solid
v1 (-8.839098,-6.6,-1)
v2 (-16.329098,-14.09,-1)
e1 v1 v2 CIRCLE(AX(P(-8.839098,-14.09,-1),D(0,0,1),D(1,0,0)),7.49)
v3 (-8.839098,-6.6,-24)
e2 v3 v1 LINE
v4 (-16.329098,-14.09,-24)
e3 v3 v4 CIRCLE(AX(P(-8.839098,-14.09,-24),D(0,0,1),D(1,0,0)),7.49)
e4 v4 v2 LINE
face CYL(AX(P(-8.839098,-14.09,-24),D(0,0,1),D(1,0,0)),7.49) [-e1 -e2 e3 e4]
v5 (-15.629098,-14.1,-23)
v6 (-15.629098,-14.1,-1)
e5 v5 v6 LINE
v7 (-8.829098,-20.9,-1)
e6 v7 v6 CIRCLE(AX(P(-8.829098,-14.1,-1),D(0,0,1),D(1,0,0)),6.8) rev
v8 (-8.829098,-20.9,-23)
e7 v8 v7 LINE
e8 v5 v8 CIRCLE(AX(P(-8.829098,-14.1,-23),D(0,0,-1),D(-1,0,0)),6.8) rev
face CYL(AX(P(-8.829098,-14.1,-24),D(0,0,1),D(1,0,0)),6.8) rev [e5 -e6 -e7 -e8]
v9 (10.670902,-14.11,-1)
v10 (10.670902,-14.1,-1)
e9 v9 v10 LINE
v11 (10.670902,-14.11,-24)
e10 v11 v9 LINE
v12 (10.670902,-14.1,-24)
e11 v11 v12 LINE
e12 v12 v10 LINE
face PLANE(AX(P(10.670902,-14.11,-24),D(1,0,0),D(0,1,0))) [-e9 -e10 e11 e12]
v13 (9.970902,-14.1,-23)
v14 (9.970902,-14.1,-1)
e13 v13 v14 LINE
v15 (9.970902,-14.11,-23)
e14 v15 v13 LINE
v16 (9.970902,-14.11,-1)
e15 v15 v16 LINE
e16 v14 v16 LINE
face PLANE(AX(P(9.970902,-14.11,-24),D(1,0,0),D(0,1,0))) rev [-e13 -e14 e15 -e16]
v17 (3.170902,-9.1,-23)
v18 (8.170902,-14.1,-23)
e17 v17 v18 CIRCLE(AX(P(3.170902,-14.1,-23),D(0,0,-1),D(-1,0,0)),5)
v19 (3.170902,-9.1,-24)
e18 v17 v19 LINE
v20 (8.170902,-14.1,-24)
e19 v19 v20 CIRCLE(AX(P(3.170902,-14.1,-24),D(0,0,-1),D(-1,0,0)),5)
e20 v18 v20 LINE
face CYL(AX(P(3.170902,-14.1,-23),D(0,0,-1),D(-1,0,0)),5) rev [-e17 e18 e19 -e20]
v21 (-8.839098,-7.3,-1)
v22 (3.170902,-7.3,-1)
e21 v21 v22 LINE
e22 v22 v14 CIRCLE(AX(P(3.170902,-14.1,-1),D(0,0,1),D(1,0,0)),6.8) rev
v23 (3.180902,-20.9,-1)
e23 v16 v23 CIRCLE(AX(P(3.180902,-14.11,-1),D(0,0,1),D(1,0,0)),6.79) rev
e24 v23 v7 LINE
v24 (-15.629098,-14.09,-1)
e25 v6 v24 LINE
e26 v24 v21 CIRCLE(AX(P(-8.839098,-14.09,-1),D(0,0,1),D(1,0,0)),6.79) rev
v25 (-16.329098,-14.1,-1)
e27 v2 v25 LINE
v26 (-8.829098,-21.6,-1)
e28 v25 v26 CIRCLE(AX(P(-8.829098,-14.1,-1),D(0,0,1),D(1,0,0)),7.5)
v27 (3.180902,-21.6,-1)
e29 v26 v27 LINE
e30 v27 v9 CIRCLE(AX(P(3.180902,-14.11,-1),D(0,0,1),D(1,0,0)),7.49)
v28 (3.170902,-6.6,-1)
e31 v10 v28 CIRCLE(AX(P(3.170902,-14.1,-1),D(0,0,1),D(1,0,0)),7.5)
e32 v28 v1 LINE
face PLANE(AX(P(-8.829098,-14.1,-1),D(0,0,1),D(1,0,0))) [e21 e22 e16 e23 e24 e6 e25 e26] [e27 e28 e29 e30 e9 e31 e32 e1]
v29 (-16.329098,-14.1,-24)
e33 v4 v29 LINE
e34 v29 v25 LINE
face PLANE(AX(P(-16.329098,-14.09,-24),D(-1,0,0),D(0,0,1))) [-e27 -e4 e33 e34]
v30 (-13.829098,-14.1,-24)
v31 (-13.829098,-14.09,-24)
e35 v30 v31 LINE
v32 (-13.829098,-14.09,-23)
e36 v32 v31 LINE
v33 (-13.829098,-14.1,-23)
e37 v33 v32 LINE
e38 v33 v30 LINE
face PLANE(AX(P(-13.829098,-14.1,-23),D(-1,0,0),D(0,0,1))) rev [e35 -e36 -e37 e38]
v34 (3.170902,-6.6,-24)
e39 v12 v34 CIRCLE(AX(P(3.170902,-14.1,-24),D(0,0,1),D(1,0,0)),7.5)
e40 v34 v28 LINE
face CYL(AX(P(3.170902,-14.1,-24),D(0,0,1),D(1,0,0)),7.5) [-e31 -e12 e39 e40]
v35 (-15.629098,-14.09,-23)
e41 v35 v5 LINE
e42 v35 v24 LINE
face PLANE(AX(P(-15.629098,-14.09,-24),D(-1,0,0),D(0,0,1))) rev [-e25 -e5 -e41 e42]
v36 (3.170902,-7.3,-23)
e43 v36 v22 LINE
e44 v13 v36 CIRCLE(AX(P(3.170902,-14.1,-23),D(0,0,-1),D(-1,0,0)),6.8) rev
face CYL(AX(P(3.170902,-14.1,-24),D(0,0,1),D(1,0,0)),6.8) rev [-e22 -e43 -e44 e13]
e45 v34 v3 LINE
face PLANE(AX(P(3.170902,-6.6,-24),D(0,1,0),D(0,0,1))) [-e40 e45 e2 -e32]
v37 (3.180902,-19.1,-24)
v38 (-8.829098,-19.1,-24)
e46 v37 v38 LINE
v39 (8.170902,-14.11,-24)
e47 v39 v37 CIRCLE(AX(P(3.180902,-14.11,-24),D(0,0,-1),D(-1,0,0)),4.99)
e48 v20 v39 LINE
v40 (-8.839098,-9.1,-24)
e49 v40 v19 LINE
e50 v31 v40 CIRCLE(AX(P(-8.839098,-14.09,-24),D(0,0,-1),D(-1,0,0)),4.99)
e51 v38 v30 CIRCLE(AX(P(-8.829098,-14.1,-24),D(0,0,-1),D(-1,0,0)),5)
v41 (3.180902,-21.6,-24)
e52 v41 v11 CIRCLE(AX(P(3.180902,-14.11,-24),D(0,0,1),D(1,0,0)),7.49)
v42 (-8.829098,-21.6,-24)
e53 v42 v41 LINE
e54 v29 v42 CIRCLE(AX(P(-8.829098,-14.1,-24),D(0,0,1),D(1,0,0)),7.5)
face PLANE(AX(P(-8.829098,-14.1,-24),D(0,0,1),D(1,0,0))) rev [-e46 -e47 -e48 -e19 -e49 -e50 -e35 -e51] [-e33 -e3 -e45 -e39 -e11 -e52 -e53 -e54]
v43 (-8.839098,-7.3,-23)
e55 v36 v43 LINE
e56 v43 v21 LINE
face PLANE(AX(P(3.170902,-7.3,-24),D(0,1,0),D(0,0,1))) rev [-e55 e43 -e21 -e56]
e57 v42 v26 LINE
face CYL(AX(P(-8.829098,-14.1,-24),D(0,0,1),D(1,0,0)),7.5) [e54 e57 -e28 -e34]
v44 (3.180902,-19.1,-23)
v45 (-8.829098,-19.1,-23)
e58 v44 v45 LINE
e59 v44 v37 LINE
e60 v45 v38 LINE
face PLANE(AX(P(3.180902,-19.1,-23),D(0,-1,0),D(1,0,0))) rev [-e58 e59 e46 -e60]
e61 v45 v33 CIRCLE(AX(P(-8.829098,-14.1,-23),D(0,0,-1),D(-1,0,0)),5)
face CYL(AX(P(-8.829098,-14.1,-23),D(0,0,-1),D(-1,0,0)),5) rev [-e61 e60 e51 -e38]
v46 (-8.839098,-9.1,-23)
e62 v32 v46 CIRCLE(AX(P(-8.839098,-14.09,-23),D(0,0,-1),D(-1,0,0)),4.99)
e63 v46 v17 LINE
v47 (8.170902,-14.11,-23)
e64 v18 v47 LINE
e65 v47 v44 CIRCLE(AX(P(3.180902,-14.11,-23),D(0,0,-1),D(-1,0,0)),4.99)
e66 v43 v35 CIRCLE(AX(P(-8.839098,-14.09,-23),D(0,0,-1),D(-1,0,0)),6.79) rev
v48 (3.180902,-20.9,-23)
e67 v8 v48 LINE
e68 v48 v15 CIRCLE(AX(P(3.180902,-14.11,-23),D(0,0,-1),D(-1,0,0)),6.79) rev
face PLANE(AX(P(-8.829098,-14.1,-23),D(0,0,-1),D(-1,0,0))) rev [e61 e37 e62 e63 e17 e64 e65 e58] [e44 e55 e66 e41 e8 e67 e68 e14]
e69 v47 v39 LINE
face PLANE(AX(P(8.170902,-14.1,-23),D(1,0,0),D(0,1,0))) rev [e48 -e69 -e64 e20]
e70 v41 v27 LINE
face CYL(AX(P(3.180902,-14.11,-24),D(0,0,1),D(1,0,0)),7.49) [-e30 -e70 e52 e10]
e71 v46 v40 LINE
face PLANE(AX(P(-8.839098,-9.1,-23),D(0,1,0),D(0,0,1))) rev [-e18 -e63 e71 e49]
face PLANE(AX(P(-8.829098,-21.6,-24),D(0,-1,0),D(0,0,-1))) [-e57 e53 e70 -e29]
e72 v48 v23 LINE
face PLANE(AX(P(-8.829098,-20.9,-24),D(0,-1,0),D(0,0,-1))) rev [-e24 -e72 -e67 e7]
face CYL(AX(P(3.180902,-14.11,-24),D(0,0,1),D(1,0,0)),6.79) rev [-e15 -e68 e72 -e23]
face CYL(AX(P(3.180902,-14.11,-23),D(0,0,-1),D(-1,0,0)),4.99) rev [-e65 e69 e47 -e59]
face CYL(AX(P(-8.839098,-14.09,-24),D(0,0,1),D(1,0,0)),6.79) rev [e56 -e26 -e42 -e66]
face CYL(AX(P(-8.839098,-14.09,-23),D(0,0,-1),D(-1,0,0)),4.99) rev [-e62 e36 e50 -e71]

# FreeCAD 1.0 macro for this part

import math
import FreeCAD as App
import Part
import Sketcher
from FreeCAD import Vector

doc = App.newDocument("Part")
body = doc.addObject("PartDesign::Body", "Body")

# Sketch on XY plane
sketch1 = doc.addObject("Sketcher::SketchObject", "Sketch")
body.addObject(sketch1)
sketch1.AttachmentSupport = (doc.XY_Plane, [""])
sketch1.MapMode = "FlatFace"
sketch1.addGeometry([
    Part.LineSegment(Vector(-8.829, -21.6, 0), Vector(3.181, -21.6, 0)),  # 0
    Part.ArcOfCircle(Part.Circle(Vector(3.181, -14.11, 0), Vector(0, 0, 1), 7.49), math.radians(-90), math.radians(0)),  # 1
    Part.LineSegment(Vector(10.671, -14.11, 0), Vector(10.671, -14.1, 0)),  # 2
    Part.ArcOfCircle(Part.Circle(Vector(3.171, -14.1, 0), Vector(0, 0, 1), 7.5), math.radians(0), math.radians(90)),  # 3
    Part.LineSegment(Vector(3.171, -6.6, 0), Vector(-8.839, -6.6, 0)),  # 4
    Part.ArcOfCircle(Part.Circle(Vector(-8.839, -14.09, 0), Vector(0, 0, 1), 7.49), math.radians(90), math.radians(180)),  # 5
    Part.LineSegment(Vector(-16.329, -14.09, 0), Vector(-16.329, -14.1, 0)),  # 6
    Part.ArcOfCircle(Part.Circle(Vector(-8.829, -14.1, 0), Vector(0, 0, 1), 7.5), math.radians(180), math.radians(270)),  # 7
    Part.LineSegment(Vector(-8.839, -7.3, 0), Vector(3.171, -7.3, 0)),  # 8
    Part.ArcOfCircle(Part.Circle(Vector(3.171, -14.1, 0), Vector(0, 0, 1), 6.8), math.radians(0), math.radians(90)),  # 9
    Part.LineSegment(Vector(9.971, -14.1, 0), Vector(9.971, -14.11, 0)),  # 10
    Part.ArcOfCircle(Part.Circle(Vector(3.181, -14.11, 0), Vector(0, 0, 1), 6.79), math.radians(-90), math.radians(0)),  # 11
    Part.LineSegment(Vector(3.181, -20.9, 0), Vector(-8.829, -20.9, 0)),  # 12
    Part.ArcOfCircle(Part.Circle(Vector(-8.829, -14.1, 0), Vector(0, 0, 1), 6.8), math.radians(180), math.radians(270)),  # 13
    Part.LineSegment(Vector(-15.629, -14.1, 0), Vector(-15.629, -14.09, 0)),  # 14
    Part.ArcOfCircle(Part.Circle(Vector(-8.839, -14.09, 0), Vector(0, 0, 1), 6.79), math.radians(90), math.radians(180)),  # 15
], False)
sketch1.addConstraint([
    Sketcher.Constraint("Tangent", 0, 2, 1, 1),
    Sketcher.Constraint("Tangent", 1, 2, 2, 1),
    Sketcher.Constraint("Coincident", 2, 2, 3, 1),
    Sketcher.Constraint("Tangent", 3, 2, 4, 1),
    Sketcher.Constraint("Tangent", 4, 2, 5, 1),
    Sketcher.Constraint("Tangent", 5, 2, 6, 1),
    Sketcher.Constraint("Coincident", 6, 2, 7, 1),
    Sketcher.Constraint("Tangent", 7, 2, 0, 1),
    Sketcher.Constraint("Tangent", 8, 2, 9, 2),
    Sketcher.Constraint("Tangent", 9, 1, 10, 1),
    Sketcher.Constraint("Coincident", 10, 2, 11, 2),
    Sketcher.Constraint("Tangent", 11, 1, 12, 1),
    Sketcher.Constraint("Tangent", 12, 2, 13, 2),
    Sketcher.Constraint("Tangent", 13, 1, 14, 1),
    Sketcher.Constraint("Coincident", 14, 2, 15, 2),
    Sketcher.Constraint("Tangent", 15, 1, 8, 1),
    Sketcher.Constraint("Horizontal", 0),
    Sketcher.Constraint("Horizontal", 4),
    Sketcher.Constraint("Horizontal", 8),
    Sketcher.Constraint("Horizontal", 12),
    Sketcher.Constraint("Coincident", 9, 3, 3, 3),
    Sketcher.Constraint("Coincident", 11, 3, 1, 3),
    Sketcher.Constraint("Coincident", 13, 3, 7, 3),
    Sketcher.Constraint("Coincident", 15, 3, 5, 3),
    Sketcher.Constraint("Equal", 1, 5),
    Sketcher.Constraint("Equal", 3, 7),
    Sketcher.Constraint("Horizontal", 3, 3, 7, 3),
    Sketcher.Constraint("Horizontal", 11, 3, 1, 2),
    Sketcher.Constraint("Horizontal", 13, 3, 2, 2),
    Sketcher.Constraint("Horizontal", 15, 3, 5, 2),
    Sketcher.Constraint("Horizontal", 2, 2, 6, 2),
    Sketcher.Constraint("Horizontal", 6, 2, 9, 1),
    Sketcher.Constraint("Horizontal", 1, 2, 10, 2),
    Sketcher.Constraint("Horizontal", 5, 2, 14, 2),
    Sketcher.Constraint("Radius", 3, 7.5),
    Sketcher.Constraint("Radius", 9, 6.8),
    Sketcher.Constraint("Radius", 1, 7.49),
    Sketcher.Constraint("DistanceX", 7, 3, 3, 3, 12.0),
    Sketcher.Constraint("DistanceY", 3, 3, -1, 1, 14.1),
    Sketcher.Constraint("DistanceX", -1, 1, 1, 3, 3.180902),
])
pad1 = doc.addObject("PartDesign::Pad", "Pad")
body.addObject(pad1)
pad1.Profile = sketch1
pad1.Length = 24
pad1.Reversed = True

# Sketch on XY plane
sketch2 = doc.addObject("Sketcher::SketchObject", "Sketch001")
body.addObject(sketch2)
sketch2.AttachmentSupport = (doc.XY_Plane, [""])
sketch2.MapMode = "FlatFace"
sketch2.addGeometry([
    Part.LineSegment(Vector(-8.829, -21.6, 0), Vector(3.181, -21.6, 0)),  # 0
    Part.ArcOfCircle(Part.Circle(Vector(3.181, -14.11, 0), Vector(0, 0, 1), 7.49), math.radians(-90), math.radians(0)),  # 1
    Part.LineSegment(Vector(10.671, -14.11, 0), Vector(10.671, -14.1, 0)),  # 2
    Part.ArcOfCircle(Part.Circle(Vector(3.171, -14.1, 0), Vector(0, 0, 1), 7.5), math.radians(0), math.radians(90)),  # 3
    Part.LineSegment(Vector(3.171, -6.6, 0), Vector(-8.839, -6.6, 0)),  # 4
    Part.ArcOfCircle(Part.Circle(Vector(-8.839, -14.09, 0), Vector(0, 0, 1), 7.49), math.radians(90), math.radians(180)),  # 5
    Part.LineSegment(Vector(-16.329, -14.09, 0), Vector(-16.329, -14.1, 0)),  # 6
    Part.ArcOfCircle(Part.Circle(Vector(-8.829, -14.1, 0), Vector(0, 0, 1), 7.5), math.radians(180), math.radians(270)),  # 7
], False)
sketch2.addConstraint([
    Sketcher.Constraint("Tangent", 0, 2, 1, 1),
    Sketcher.Constraint("Tangent", 1, 2, 2, 1),
    Sketcher.Constraint("Coincident", 2, 2, 3, 1),
    Sketcher.Constraint("Tangent", 3, 2, 4, 1),
    Sketcher.Constraint("Tangent", 4, 2, 5, 1),
    Sketcher.Constraint("Tangent", 5, 2, 6, 1),
    Sketcher.Constraint("Coincident", 6, 2, 7, 1),
    Sketcher.Constraint("Tangent", 7, 2, 0, 1),
    Sketcher.Constraint("Horizontal", 0),
    Sketcher.Constraint("Horizontal", 4),
    Sketcher.Constraint("Equal", 1, 5),
    Sketcher.Constraint("Equal", 3, 7),
    Sketcher.Constraint("Horizontal", 3, 3, 7, 3),
    Sketcher.Constraint("Horizontal", 7, 3, 2, 2),
    Sketcher.Constraint("Horizontal", 2, 2, 6, 2),
    Sketcher.Constraint("Equal", 2, 6),
    Sketcher.Constraint("Radius", 3, 7.5),
    Sketcher.Constraint("Radius", 1, 7.49),
    Sketcher.Constraint("DistanceX", 7, 3, 3, 3, 12.0),
    Sketcher.Constraint("DistanceY", 2, 1, 2, 2, 0.01),
    Sketcher.Constraint("DistanceY", 3, 3, -1, 1, 14.1),
    Sketcher.Constraint("DistanceX", -1, 1, 1, 3, 3.180902),
])
pocket1 = doc.addObject("PartDesign::Pocket", "Pocket")
body.addObject(pocket1)
pocket1.Profile = sketch2
pocket1.Length = 1

# Sketch on XY plane
sketch3 = doc.addObject("Sketcher::SketchObject", "Sketch002")
body.addObject(sketch3)
sketch3.AttachmentSupport = (doc.XY_Plane, [""])
sketch3.MapMode = "FlatFace"
sketch3.AttachmentOffset = App.Placement(Vector(0, 0, -23), App.Rotation())
sketch3.addGeometry([
    Part.LineSegment(Vector(-16.329, -14.1, 0), Vector(-16.329, -14.09, 0)),  # 0
    Part.ArcOfCircle(Part.Circle(Vector(-8.839, -14.09, 0), Vector(0, 0, 1), 7.49), math.radians(90), math.radians(180)),  # 1
    Part.LineSegment(Vector(-8.839, -6.6, 0), Vector(3.171, -6.6, 0)),  # 2
    Part.ArcOfCircle(Part.Circle(Vector(3.171, -14.1, 0), Vector(0, 0, 1), 7.5), math.radians(0), math.radians(90)),  # 3
    Part.LineSegment(Vector(10.671, -14.1, 0), Vector(10.671, -14.11, 0)),  # 4
    Part.ArcOfCircle(Part.Circle(Vector(3.181, -14.11, 0), Vector(0, 0, 1), 7.49), math.radians(-90), math.radians(0)),  # 5
    Part.LineSegment(Vector(3.181, -21.6, 0), Vector(-8.829, -21.6, 0)),  # 6
    Part.ArcOfCircle(Part.Circle(Vector(-8.829, -14.1, 0), Vector(0, 0, 1), 7.5), math.radians(180), math.radians(270)),  # 7
    Part.LineSegment(Vector(3.171, -9.1, 0), Vector(-8.839, -9.1, 0)),  # 8
    Part.ArcOfCircle(Part.Circle(Vector(-8.839, -14.09, 0), Vector(0, 0, 1), 4.99), math.radians(90), math.radians(180)),  # 9
    Part.LineSegment(Vector(-13.829, -14.09, 0), Vector(-13.829, -14.1, 0)),  # 10
    Part.ArcOfCircle(Part.Circle(Vector(-8.829, -14.1, 0), Vector(0, 0, 1), 5), math.radians(180), math.radians(270)),  # 11
    Part.LineSegment(Vector(-8.829, -19.1, 0), Vector(3.181, -19.1, 0)),  # 12
    Part.ArcOfCircle(Part.Circle(Vector(3.181, -14.11, 0), Vector(0, 0, 1), 4.99), math.radians(-90), math.radians(0)),  # 13
    Part.LineSegment(Vector(8.171, -14.11, 0), Vector(8.171, -14.1, 0)),  # 14
    Part.ArcOfCircle(Part.Circle(Vector(3.171, -14.1, 0), Vector(0, 0, 1), 5), math.radians(0), math.radians(90)),  # 15
], False)
sketch3.addConstraint([
    Sketcher.Constraint("Tangent", 0, 2, 1, 2),
    Sketcher.Constraint("Tangent", 1, 1, 2, 1),
    Sketcher.Constraint("Tangent", 2, 2, 3, 2),
    Sketcher.Constraint("Tangent", 3, 1, 4, 1),
    Sketcher.Constraint("Coincident", 4, 2, 5, 2),
    Sketcher.Constraint("Tangent", 5, 1, 6, 1),
    Sketcher.Constraint("Tangent", 6, 2, 7, 2),
    Sketcher.Constraint("Coincident", 7, 1, 0, 1),
    Sketcher.Constraint("Tangent", 8, 2, 9, 1),
    Sketcher.Constraint("Tangent", 9, 2, 10, 1),
    Sketcher.Constraint("Tangent", 10, 2, 11, 1),
    Sketcher.Constraint("Tangent", 11, 2, 12, 1),
    Sketcher.Constraint("Tangent", 12, 2, 13, 1),
    Sketcher.Constraint("Tangent", 13, 2, 14, 1),
    Sketcher.Constraint("Tangent", 14, 2, 15, 1),
    Sketcher.Constraint("Tangent", 15, 2, 8, 1),
    Sketcher.Constraint("Horizontal", 2),
    Sketcher.Constraint("Horizontal", 6),
    Sketcher.Constraint("Horizontal", 8),
    Sketcher.Constraint("Horizontal", 12),
    Sketcher.Constraint("Coincident", 9, 3, 1, 3),
    Sketcher.Constraint("Coincident", 11, 3, 7, 3),
    Sketcher.Constraint("Coincident", 13, 3, 5, 3),
    Sketcher.Constraint("Equal", 1, 5),
    Sketcher.Constraint("Equal", 3, 7),
    Sketcher.Constraint("Equal", 11, 15),
    Sketcher.Constraint("Horizontal", 3, 3, 7, 3),
    Sketcher.Constraint("Horizontal", 9, 3, 0, 2),
    Sketcher.Constraint("Horizontal", 15, 3, 3, 1),
    Sketcher.Constraint("Horizontal", 13, 3, 4, 2),
    Sketcher.Constraint("Horizontal", 3, 1, 7, 1),
    Sketcher.Constraint("Horizontal", 0, 2, 9, 2),
    Sketcher.Constraint("Horizontal", 4, 2, 13, 2),
    Sketcher.Constraint("Radius", 11, 5.0),
    Sketcher.Constraint("Radius", 3, 7.5),
    Sketcher.Constraint("Radius", 1, 7.49),
    Sketcher.Constraint("DistanceX", 7, 3, 3, 3, 12.0),
    Sketcher.Constraint("DistanceY", 3, 3, -1, 1, 14.1),
    Sketcher.Constraint("DistanceX", 1, 3, -1, 1, 8.839098),
])
pad2 = doc.addObject("PartDesign::Pad", "Pad001")
body.addObject(pad2)
pad2.Profile = sketch3
pad2.Length = 1
pad2.Reversed = True

doc.recompute()
